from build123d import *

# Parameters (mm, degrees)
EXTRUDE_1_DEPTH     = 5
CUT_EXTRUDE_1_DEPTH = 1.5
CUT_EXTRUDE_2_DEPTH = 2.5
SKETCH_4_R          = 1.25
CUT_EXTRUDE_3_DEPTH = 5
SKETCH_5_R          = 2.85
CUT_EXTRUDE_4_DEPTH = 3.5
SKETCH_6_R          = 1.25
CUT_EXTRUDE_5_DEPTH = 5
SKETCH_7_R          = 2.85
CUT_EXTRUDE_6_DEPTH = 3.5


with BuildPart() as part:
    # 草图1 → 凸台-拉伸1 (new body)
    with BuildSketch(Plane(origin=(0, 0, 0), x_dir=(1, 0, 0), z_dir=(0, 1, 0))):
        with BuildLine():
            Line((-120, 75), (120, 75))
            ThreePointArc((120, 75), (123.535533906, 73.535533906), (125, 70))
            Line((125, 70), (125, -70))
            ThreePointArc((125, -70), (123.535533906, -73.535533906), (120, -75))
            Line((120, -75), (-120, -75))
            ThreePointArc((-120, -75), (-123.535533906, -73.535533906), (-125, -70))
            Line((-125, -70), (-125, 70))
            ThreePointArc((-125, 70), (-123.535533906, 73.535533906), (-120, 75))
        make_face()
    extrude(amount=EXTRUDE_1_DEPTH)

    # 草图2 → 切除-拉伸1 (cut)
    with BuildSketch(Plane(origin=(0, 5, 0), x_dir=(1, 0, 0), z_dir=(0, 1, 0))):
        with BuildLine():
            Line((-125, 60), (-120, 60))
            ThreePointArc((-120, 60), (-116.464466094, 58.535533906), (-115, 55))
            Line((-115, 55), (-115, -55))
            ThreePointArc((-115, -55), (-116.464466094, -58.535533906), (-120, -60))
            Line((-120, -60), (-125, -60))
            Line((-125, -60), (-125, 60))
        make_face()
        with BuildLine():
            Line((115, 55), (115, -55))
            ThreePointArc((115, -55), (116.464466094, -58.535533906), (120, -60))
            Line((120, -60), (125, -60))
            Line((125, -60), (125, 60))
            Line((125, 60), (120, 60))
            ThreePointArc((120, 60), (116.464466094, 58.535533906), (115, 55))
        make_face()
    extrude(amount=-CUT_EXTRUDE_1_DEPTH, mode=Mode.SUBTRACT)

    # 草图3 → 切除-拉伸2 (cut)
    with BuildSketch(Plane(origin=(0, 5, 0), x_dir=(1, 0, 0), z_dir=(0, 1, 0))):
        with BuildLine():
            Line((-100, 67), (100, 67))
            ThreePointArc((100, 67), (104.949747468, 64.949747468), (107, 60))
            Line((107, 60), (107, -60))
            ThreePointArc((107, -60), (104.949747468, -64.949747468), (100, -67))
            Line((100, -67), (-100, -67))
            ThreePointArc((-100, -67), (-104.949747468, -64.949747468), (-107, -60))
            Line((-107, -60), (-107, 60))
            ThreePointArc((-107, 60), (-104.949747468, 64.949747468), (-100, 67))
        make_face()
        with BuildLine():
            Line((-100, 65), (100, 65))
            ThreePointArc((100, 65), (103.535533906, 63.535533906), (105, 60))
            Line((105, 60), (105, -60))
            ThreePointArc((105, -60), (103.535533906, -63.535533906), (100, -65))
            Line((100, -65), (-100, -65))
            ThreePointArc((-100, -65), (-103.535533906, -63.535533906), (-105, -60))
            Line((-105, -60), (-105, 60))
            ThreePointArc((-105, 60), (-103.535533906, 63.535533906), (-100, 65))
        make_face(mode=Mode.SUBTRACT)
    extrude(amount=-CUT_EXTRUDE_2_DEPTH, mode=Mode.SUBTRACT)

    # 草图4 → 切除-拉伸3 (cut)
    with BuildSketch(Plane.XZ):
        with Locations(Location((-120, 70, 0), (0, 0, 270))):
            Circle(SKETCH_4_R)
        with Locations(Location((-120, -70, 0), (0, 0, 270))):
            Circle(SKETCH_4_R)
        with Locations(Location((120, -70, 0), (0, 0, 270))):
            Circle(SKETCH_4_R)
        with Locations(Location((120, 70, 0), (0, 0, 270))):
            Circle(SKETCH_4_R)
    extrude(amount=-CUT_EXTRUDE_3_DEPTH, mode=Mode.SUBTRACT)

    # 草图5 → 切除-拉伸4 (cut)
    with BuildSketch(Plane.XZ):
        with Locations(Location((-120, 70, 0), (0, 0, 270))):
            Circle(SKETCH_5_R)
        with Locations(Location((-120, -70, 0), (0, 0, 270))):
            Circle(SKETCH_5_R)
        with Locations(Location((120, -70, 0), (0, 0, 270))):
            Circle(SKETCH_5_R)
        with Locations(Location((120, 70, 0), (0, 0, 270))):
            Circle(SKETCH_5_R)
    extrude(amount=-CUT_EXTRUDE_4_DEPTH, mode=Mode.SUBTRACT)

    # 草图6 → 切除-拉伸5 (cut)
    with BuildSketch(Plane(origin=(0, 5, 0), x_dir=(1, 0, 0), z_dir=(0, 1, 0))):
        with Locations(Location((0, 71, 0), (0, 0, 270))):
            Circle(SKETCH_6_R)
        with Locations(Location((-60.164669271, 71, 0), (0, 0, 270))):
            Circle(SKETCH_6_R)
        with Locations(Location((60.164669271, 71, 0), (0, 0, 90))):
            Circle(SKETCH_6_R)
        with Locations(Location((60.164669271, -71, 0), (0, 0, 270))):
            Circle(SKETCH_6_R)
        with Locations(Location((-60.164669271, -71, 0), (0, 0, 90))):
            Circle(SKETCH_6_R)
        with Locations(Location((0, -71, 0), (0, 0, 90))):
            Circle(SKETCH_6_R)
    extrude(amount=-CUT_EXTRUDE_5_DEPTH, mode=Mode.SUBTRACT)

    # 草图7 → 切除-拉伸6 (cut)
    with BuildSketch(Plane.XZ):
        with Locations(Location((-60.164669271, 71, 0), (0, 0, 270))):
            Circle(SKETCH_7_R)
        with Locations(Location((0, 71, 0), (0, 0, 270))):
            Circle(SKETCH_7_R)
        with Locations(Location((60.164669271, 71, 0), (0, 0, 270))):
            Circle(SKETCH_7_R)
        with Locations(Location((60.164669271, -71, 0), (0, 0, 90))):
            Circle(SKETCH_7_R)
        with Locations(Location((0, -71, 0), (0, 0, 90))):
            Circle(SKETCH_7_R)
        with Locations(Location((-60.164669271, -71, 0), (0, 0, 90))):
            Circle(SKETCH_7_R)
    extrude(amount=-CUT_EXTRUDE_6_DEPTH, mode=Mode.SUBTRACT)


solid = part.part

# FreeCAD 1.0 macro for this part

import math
import FreeCAD as App
import Part
import Sketcher

V = App.Vector
Q = App.Units.Quantity

doc = App.newDocument("Part")
body = doc.addObject("PartDesign::Body", "Body")

# Sketch on XZ plane
sketch1 = body.newObject("Sketcher::SketchObject", "Sketch")
sketch1.AttachmentSupport = (doc.getObject("XZ_Plane"), [""])
sketch1.MapMode = "FlatFace"
sketch1.addGeometry([
    Part.LineSegment(V(120, -75, 0), V(-120, -75, 0)),  # 0
    Part.ArcOfCircle(Part.Circle(V(-120, -70, 0), V(0, 0, 1), 5), math.radians(180), math.radians(270)),  # 1
    Part.LineSegment(V(-125, -70, 0), V(-125, 70, 0)),  # 2
    Part.ArcOfCircle(Part.Circle(V(-120, 70, 0), V(0, 0, 1), 5), math.radians(90), math.radians(180)),  # 3
    Part.LineSegment(V(-120, 75, 0), V(120, 75, 0)),  # 4
    Part.ArcOfCircle(Part.Circle(V(120, 70, 0), V(0, 0, 1), 5), math.radians(0), math.radians(90)),  # 5
    Part.LineSegment(V(125, 70, 0), V(125, -70, 0)),  # 6
    Part.ArcOfCircle(Part.Circle(V(120, -70, 0), V(0, 0, 1), 5), math.radians(-90), math.radians(0)),  # 7
], False)
sketch1.addConstraint([
    Sketcher.Constraint("Tangent", 0, 2, 1, 2),
    Sketcher.Constraint("Tangent", 1, 1, 2, 1),
    Sketcher.Constraint("Tangent", 2, 2, 3, 2),
    Sketcher.Constraint("Tangent", 3, 1, 4, 1),
    Sketcher.Constraint("Tangent", 4, 2, 5, 2),
    Sketcher.Constraint("Tangent", 5, 1, 6, 1),
    Sketcher.Constraint("Tangent", 6, 2, 7, 2),
    Sketcher.Constraint("Tangent", 7, 1, 0, 1),
    Sketcher.Constraint("Horizontal", 0),
    Sketcher.Constraint("Vertical", 2),
    Sketcher.Constraint("Horizontal", 4),
    Sketcher.Constraint("Vertical", 6),
    Sketcher.Constraint("Equal", 1, 3),
    Sketcher.Constraint("Equal", 3, 5),
    Sketcher.Constraint("Equal", 5, 7),
    Sketcher.Constraint("Symmetric", 1, 3, 5, 3, -1, 1),
    Sketcher.Constraint("Radius", 1, Q("5 mm")),
    Sketcher.Constraint("DistanceX", 0, 2, 0, 1, Q("240 mm")),
    Sketcher.Constraint("DistanceY", 2, 1, 2, 2, Q("140 mm")),
])
pad1 = body.newObject("PartDesign::Pad", "Pad")
pad1.Profile = sketch1
pad1.Length = 5
pad1.Reversed = True

# Sketch on XZ plane
sketch2 = body.newObject("Sketcher::SketchObject", "Sketch001")
sketch2.AttachmentSupport = (doc.getObject("XZ_Plane"), [""])
sketch2.MapMode = "FlatFace"
sketch2.AttachmentOffset = App.Placement(V(0, 0, -5), App.Rotation())
sketch2.addGeometry([
    Part.LineSegment(V(-120, -60, 0), V(-125, -60, 0)),  # 0
    Part.LineSegment(V(-125, -60, 0), V(-125, 60, 0)),  # 1
    Part.LineSegment(V(-125, 60, 0), V(-120, 60, 0)),  # 2
    Part.ArcOfCircle(Part.Circle(V(-120, 55, 0), V(0, 0, 1), 5), math.radians(0), math.radians(90)),  # 3
    Part.LineSegment(V(-115, 55, 0), V(-115, -55, 0)),  # 4
    Part.ArcOfCircle(Part.Circle(V(-120, -55, 0), V(0, 0, 1), 5), math.radians(-90), math.radians(0)),  # 5
    Part.LineSegment(V(115, -55, 0), V(115, 55, 0)),  # 6
    Part.ArcOfCircle(Part.Circle(V(120, 55, 0), V(0, 0, 1), 5), math.radians(90), math.radians(180)),  # 7
    Part.LineSegment(V(120, 60, 0), V(125, 60, 0)),  # 8
    Part.LineSegment(V(125, 60, 0), V(125, -60, 0)),  # 9
    Part.LineSegment(V(125, -60, 0), V(120, -60, 0)),  # 10
    Part.ArcOfCircle(Part.Circle(V(120, -55, 0), V(0, 0, 1), 5), math.radians(180), math.radians(270)),  # 11
], False)
sketch2.addConstraint([
    Sketcher.Constraint("Coincident", 0, 2, 1, 1),
    Sketcher.Constraint("Coincident", 1, 2, 2, 1),
    Sketcher.Constraint("Tangent", 2, 2, 3, 2),
    Sketcher.Constraint("Tangent", 3, 1, 4, 1),
    Sketcher.Constraint("Tangent", 4, 2, 5, 2),
    Sketcher.Constraint("Tangent", 5, 1, 0, 1),
    Sketcher.Constraint("Tangent", 6, 2, 7, 2),
    Sketcher.Constraint("Tangent", 7, 1, 8, 1),
    Sketcher.Constraint("Coincident", 8, 2, 9, 1),
    Sketcher.Constraint("Coincident", 9, 2, 10, 1),
    Sketcher.Constraint("Tangent", 10, 2, 11, 2),
    Sketcher.Constraint("Tangent", 11, 1, 6, 1),
    Sketcher.Constraint("Horizontal", 0),
    Sketcher.Constraint("Vertical", 1),
    Sketcher.Constraint("Horizontal", 2),
    Sketcher.Constraint("Vertical", 4),
    Sketcher.Constraint("Vertical", 6),
    Sketcher.Constraint("Horizontal", 8),
    Sketcher.Constraint("Vertical", 9),
    Sketcher.Constraint("Horizontal", 10),
    Sketcher.Constraint("Equal", 3, 5),
    Sketcher.Constraint("Equal", 5, 7),
    Sketcher.Constraint("Equal", 7, 11),
    Sketcher.Constraint("Symmetric", 5, 3, 7, 3, -1, 1),
    Sketcher.Constraint("Symmetric", 1, 2, 9, 2, -1, 1),
    Sketcher.Constraint("Horizontal", 3, 3, 7, 3),
    Sketcher.Constraint("Radius", 3, Q("5 mm")),
    Sketcher.Constraint("DistanceX", 0, 2, 0, 1, Q("5 mm")),
    Sketcher.Constraint("DistanceY", 1, 1, 1, 2, Q("120 mm")),
    Sketcher.Constraint("DistanceX", 3, 3, -1, 1, Q("120 mm")),
])
pocket1 = body.newObject("PartDesign::Pocket", "Pocket")
pocket1.Profile = sketch2
pocket1.Length = 1.5
pocket1.Reversed = True

# Sketch on XZ plane
sketch3 = body.newObject("Sketcher::SketchObject", "Sketch002")
sketch3.AttachmentSupport = (doc.getObject("XZ_Plane"), [""])
sketch3.MapMode = "FlatFace"
sketch3.AttachmentOffset = App.Placement(V(0, 0, -5), App.Rotation())
sketch3.addGeometry([
    Part.LineSegment(V(100, -67, 0), V(-100, -67, 0)),  # 0
    Part.ArcOfCircle(Part.Circle(V(-100, -60, 0), V(0, 0, 1), 7), math.radians(-180), math.radians(-90)),  # 1
    Part.LineSegment(V(-107, -60, 0), V(-107, 60, 0)),  # 2
    Part.ArcOfCircle(Part.Circle(V(-100, 60, 0), V(0, 0, 1), 7), math.radians(90), math.radians(180)),  # 3
    Part.LineSegment(V(-100, 67, 0), V(100, 67, 0)),  # 4
    Part.ArcOfCircle(Part.Circle(V(100, 60, 0), V(0, 0, 1), 7), math.radians(0), math.radians(90)),  # 5
    Part.LineSegment(V(107, 60, 0), V(107, -60, 0)),  # 6
    Part.ArcOfCircle(Part.Circle(V(100, -60, 0), V(0, 0, 1), 7), math.radians(-90), math.radians(0)),  # 7
    Part.LineSegment(V(-100, -65, 0), V(100, -65, 0)),  # 8
    Part.ArcOfCircle(Part.Circle(V(100, -60, 0), V(0, 0, 1), 5), math.radians(-90), math.radians(0)),  # 9
    Part.LineSegment(V(105, -60, 0), V(105, 60, 0)),  # 10
    Part.ArcOfCircle(Part.Circle(V(100, 60, 0), V(0, 0, 1), 5), math.radians(0), math.radians(90)),  # 11
    Part.LineSegment(V(100, 65, 0), V(-100, 65, 0)),  # 12
    Part.ArcOfCircle(Part.Circle(V(-100, 60, 0), V(0, 0, 1), 5), math.radians(90), math.radians(180)),  # 13
    Part.LineSegment(V(-105, 60, 0), V(-105, -60, 0)),  # 14
    Part.ArcOfCircle(Part.Circle(V(-100, -60, 0), V(0, 0, 1), 5), math.radians(180), math.radians(270)),  # 15
], False)
sketch3.addConstraint([
    Sketcher.Constraint("Tangent", 0, 2, 1, 2),
    Sketcher.Constraint("Tangent", 1, 1, 2, 1),
    Sketcher.Constraint("Tangent", 2, 2, 3, 2),
    Sketcher.Constraint("Tangent", 3, 1, 4, 1),
    Sketcher.Constraint("Tangent", 4, 2, 5, 2),
    Sketcher.Constraint("Tangent", 5, 1, 6, 1),
    Sketcher.Constraint("Tangent", 6, 2, 7, 2),
    Sketcher.Constraint("Tangent", 7, 1, 0, 1),
    Sketcher.Constraint("Tangent", 8, 2, 9, 1),
    Sketcher.Constraint("Tangent", 9, 2, 10, 1),
    Sketcher.Constraint("Tangent", 10, 2, 11, 1),
    Sketcher.Constraint("Tangent", 11, 2, 12, 1),
    Sketcher.Constraint("Tangent", 12, 2, 13, 1),
    Sketcher.Constraint("Tangent", 13, 2, 14, 1),
    Sketcher.Constraint("Tangent", 14, 2, 15, 1),
    Sketcher.Constraint("Tangent", 15, 2, 8, 1),
    Sketcher.Constraint("Horizontal", 0),
    Sketcher.Constraint("Vertical", 2),
    Sketcher.Constraint("Horizontal", 4),
    Sketcher.Constraint("Vertical", 6),
    Sketcher.Constraint("Horizontal", 8),
    Sketcher.Constraint("Vertical", 10),
    Sketcher.Constraint("Horizontal", 12),
    Sketcher.Constraint("Vertical", 14),
    Sketcher.Constraint("Coincident", 9, 3, 7, 3),
    Sketcher.Constraint("Coincident", 11, 3, 5, 3),
    Sketcher.Constraint("Coincident", 13, 3, 3, 3),
    Sketcher.Constraint("Equal", 1, 3),
    Sketcher.Constraint("Equal", 3, 5),
    Sketcher.Constraint("Equal", 5, 7),
    Sketcher.Constraint("Equal", 13, 15),
    Sketcher.Constraint("Symmetric", 1, 3, 5, 3, -1, 1),
    Sketcher.Constraint("Radius", 1, Q("7 mm")),
    Sketcher.Constraint("Radius", 9, Q("5 mm")),
    Sketcher.Constraint("DistanceX", 0, 2, 0, 1, Q("200 mm")),
    Sketcher.Constraint("DistanceY", 2, 1, 2, 2, Q("120 mm")),
])
pocket2 = body.newObject("PartDesign::Pocket", "Pocket001")
pocket2.Profile = sketch3
pocket2.Length = 2.5
pocket2.Reversed = True

# Sketch on XZ plane
sketch4 = body.newObject("Sketcher::SketchObject", "Sketch003")
sketch4.AttachmentSupport = (doc.getObject("XZ_Plane"), [""])
sketch4.MapMode = "FlatFace"
sketch4.addGeometry([
    Part.Circle(V(-120, 70, 0), V(0, 0, 1), 1.25),
    Part.Circle(V(-120, -70, 0), V(0, 0, 1), 1.25),
    Part.Circle(V(120, -70, 0), V(0, 0, 1), 1.25),
    Part.Circle(V(120, 70, 0), V(0, 0, 1), 1.25),
], False)
sketch4.addConstraint([
    Sketcher.Constraint("Equal", 0, 1),
    Sketcher.Constraint("Equal", 1, 2),
    Sketcher.Constraint("Equal", 2, 3),
    Sketcher.Constraint("Symmetric", 0, 3, 2, 3, -1, 1),
    Sketcher.Constraint("Symmetric", 1, 3, 3, 3, -1, 1),
    Sketcher.Constraint("Symmetric", 1, 3, 2, 3, -2),
    Sketcher.Constraint("Diameter", 0, Q("2.5 mm")),
    Sketcher.Constraint("DistanceX", 0, 3, -1, 1, Q("120 mm")),
    Sketcher.Constraint("DistanceY", -1, 1, 0, 3, Q("70 mm")),
])
pocket3 = body.newObject("PartDesign::Pocket", "Pocket002")
pocket3.Profile = sketch4
pocket3.Length = 5

# Sketch on XZ plane
sketch5 = body.newObject("Sketcher::SketchObject", "Sketch004")
sketch5.AttachmentSupport = (doc.getObject("XZ_Plane"), [""])
sketch5.MapMode = "FlatFace"
sketch5.addGeometry([
    Part.Circle(V(-120, 70, 0), V(0, 0, 1), 2.85),
    Part.Circle(V(-120, -70, 0), V(0, 0, 1), 2.85),
    Part.Circle(V(120, -70, 0), V(0, 0, 1), 2.85),
    Part.Circle(V(120, 70, 0), V(0, 0, 1), 2.85),
], False)
sketch5.addConstraint([
    Sketcher.Constraint("Equal", 0, 1),
    Sketcher.Constraint("Equal", 1, 2),
    Sketcher.Constraint("Equal", 2, 3),
    Sketcher.Constraint("Symmetric", 0, 3, 2, 3, -1, 1),
    Sketcher.Constraint("Symmetric", 1, 3, 3, 3, -1, 1),
    Sketcher.Constraint("Symmetric", 1, 3, 2, 3, -2),
    Sketcher.Constraint("Diameter", 0, Q("5.7 mm")),
    Sketcher.Constraint("DistanceX", 0, 3, -1, 1, Q("120 mm")),
    Sketcher.Constraint("DistanceY", -1, 1, 0, 3, Q("70 mm")),
])
pocket4 = body.newObject("PartDesign::Pocket", "Pocket003")
pocket4.Profile = sketch5
pocket4.Length = 3.5

# Sketch on XZ plane
sketch6 = body.newObject("Sketcher::SketchObject", "Sketch005")
sketch6.AttachmentSupport = (doc.getObject("XZ_Plane"), [""])
sketch6.MapMode = "FlatFace"
sketch6.AttachmentOffset = App.Placement(V(0, 0, -5), App.Rotation())
sketch6.addGeometry([
    Part.Circle(V(0, -71, 0), V(0, 0, 1), 1.25),  # 0
    Part.Circle(V(-60.164669, -71, 0), V(0, 0, 1), 1.25),  # 1
    Part.Circle(V(60.164669, -71, 0), V(0, 0, 1), 1.25),  # 2
    Part.Circle(V(60.164669, 71, 0), V(0, 0, 1), 1.25),  # 3
    Part.Circle(V(-60.164669, 71, 0), V(0, 0, 1), 1.25),  # 4
    Part.Circle(V(0, 71, 0), V(0, 0, 1), 1.25),  # 5
], False)
sketch6.addConstraint([
    Sketcher.Constraint("Equal", 0, 1),
    Sketcher.Constraint("Equal", 1, 2),
    Sketcher.Constraint("Equal", 2, 3),
    Sketcher.Constraint("Equal", 3, 4),
    Sketcher.Constraint("Equal", 4, 5),
    Sketcher.Constraint("Symmetric", 1, 3, 3, 3, -1, 1),
    Sketcher.Constraint("Symmetric", 2, 3, 4, 3, -1, 1),
    Sketcher.Constraint("Symmetric", 0, 3, 5, 3, -1, 1),
    Sketcher.Constraint("Symmetric", 1, 3, 2, 3, -2),
    Sketcher.Constraint("PointOnObject", 0, 3, -2),
    Sketcher.Constraint("Horizontal", 0, 3, 1, 3),
    Sketcher.Constraint("Diameter", 0, Q("2.5 mm")),
    Sketcher.Constraint("DistanceY", 0, 3, -1, 1, Q("71 mm")),
    Sketcher.Constraint("DistanceX", 1, 3, -1, 1, Q("60.164669 mm")),
])
pocket5 = body.newObject("PartDesign::Pocket", "Pocket004")
pocket5.Profile = sketch6
pocket5.Length = 5
pocket5.Reversed = True

# Sketch on XZ plane
sketch7 = body.newObject("Sketcher::SketchObject", "Sketch006")
sketch7.AttachmentSupport = (doc.getObject("XZ_Plane"), [""])
sketch7.MapMode = "FlatFace"
sketch7.addGeometry([
    Part.Circle(V(-60.164669, 71, 0), V(0, 0, 1), 2.85),  # 0
    Part.Circle(V(0, 71, 0), V(0, 0, 1), 2.85),  # 1
    Part.Circle(V(60.164669, 71, 0), V(0, 0, 1), 2.85),  # 2
    Part.Circle(V(60.164669, -71, 0), V(0, 0, 1), 2.85),  # 3
    Part.Circle(V(0, -71, 0), V(0, 0, 1), 2.85),  # 4
    Part.Circle(V(-60.164669, -71, 0), V(0, 0, 1), 2.85),  # 5
], False)
sketch7.addConstraint([
    Sketcher.Constraint("Equal", 0, 1),
    Sketcher.Constraint("Equal", 1, 2),
    Sketcher.Constraint("Equal", 2, 3),
    Sketcher.Constraint("Equal", 3, 4),
    Sketcher.Constraint("Equal", 4, 5),
    Sketcher.Constraint("Symmetric", 0, 3, 3, 3, -1, 1),
    Sketcher.Constraint("Symmetric", 1, 3, 4, 3, -1, 1),
    Sketcher.Constraint("Symmetric", 2, 3, 5, 3, -1, 1),
    Sketcher.Constraint("Symmetric", 0, 3, 2, 3, -2),
    Sketcher.Constraint("PointOnObject", 1, 3, -2),
    Sketcher.Constraint("Horizontal", 0, 3, 1, 3),
    Sketcher.Constraint("Diameter", 0, Q("5.7 mm")),
    Sketcher.Constraint("DistanceY", -1, 1, 0, 3, Q("71 mm")),
    Sketcher.Constraint("DistanceX", 0, 3, -1, 1, Q("60.164669 mm")),
])
pocket6 = body.newObject("PartDesign::Pocket", "Pocket005")
pocket6.Profile = sketch7
pocket6.Length = 3.5

doc.recompute()
